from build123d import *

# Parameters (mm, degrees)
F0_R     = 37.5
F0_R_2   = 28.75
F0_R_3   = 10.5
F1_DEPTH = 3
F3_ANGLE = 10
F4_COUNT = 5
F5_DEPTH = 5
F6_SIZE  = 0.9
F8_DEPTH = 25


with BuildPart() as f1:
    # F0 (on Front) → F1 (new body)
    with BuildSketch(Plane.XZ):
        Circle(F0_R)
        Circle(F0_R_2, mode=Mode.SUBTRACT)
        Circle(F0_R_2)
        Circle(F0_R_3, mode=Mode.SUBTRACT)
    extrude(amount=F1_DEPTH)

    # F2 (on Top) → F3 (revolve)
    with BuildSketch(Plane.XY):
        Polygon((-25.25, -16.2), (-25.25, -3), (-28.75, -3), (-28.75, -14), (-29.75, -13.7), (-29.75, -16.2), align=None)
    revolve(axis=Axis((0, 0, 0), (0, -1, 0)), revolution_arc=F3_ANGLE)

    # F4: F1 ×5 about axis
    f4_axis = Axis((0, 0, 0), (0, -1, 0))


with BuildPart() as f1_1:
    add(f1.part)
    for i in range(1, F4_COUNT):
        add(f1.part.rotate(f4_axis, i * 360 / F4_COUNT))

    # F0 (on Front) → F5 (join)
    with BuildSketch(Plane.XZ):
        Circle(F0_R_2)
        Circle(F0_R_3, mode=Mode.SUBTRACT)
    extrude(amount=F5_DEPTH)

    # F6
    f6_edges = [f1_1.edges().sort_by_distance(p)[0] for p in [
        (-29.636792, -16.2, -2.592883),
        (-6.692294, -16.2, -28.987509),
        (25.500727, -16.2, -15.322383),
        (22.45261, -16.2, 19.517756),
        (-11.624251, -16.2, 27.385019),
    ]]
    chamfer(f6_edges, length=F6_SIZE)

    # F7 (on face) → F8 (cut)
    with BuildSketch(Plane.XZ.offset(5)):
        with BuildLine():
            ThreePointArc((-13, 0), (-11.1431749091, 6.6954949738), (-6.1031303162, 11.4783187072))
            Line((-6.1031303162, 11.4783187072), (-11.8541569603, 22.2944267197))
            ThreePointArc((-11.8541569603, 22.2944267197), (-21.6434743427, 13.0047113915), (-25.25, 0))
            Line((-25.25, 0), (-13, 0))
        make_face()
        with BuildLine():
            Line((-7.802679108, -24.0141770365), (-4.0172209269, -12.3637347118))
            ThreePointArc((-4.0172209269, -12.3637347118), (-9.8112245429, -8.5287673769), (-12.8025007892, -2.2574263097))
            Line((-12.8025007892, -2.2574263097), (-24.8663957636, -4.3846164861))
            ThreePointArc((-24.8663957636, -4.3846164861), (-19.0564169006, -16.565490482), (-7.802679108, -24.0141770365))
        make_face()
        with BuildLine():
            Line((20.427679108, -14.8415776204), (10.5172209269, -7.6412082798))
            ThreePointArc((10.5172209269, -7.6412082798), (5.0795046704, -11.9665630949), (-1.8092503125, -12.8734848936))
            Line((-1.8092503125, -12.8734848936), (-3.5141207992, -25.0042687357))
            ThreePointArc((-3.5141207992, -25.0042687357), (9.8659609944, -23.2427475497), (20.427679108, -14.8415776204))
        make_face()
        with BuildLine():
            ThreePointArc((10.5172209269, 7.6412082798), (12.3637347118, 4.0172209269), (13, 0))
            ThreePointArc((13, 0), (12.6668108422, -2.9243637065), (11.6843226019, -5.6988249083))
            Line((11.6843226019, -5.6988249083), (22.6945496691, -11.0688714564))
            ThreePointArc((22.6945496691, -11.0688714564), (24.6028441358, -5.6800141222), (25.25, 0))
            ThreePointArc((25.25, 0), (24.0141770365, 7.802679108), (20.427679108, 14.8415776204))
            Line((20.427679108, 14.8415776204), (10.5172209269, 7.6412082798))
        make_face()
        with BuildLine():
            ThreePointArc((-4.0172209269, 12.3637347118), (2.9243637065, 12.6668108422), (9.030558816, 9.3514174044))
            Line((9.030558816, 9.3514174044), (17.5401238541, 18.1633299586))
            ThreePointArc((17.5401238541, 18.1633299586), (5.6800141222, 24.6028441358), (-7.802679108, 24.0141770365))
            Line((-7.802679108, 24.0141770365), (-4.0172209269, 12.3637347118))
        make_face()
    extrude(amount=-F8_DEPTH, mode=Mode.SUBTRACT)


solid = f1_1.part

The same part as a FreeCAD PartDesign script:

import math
import FreeCAD as App
import Part
import Sketcher

V = App.Vector
Q = App.Units.Quantity


def edges_at(feature, points):
    """Names of the edges that pass closest to the given points."""
    edges = feature.Shape.Edges
    near = lambda p: min(range(len(edges)), key=lambda i: edges[i].distToShape(Part.Vertex(*p))[0])
    return sorted({f"Edge{near(p) + 1}" for p in points})


def add_polygon(sketch, points):
    """Adds a closed chain of lines whose ends are joined by coincident constraints."""
    first, n = sketch.GeometryCount, len(points)
    for a, b in zip(points, points[1:] + points[:1]):
        sketch.addGeometry(Part.LineSegment(App.Vector(*a, 0), App.Vector(*b, 0)), False)
    for i in range(n):
        sketch.addConstraint(Sketcher.Constraint("Coincident", first + i, 2, first + (i + 1) % n, 1))

doc = App.newDocument("Part")
body = doc.addObject("PartDesign::Body", "Body")

# Sketch on XZ plane
sketch1 = body.newObject("Sketcher::SketchObject", "Sketch")
sketch1.AttachmentSupport = (doc.getObject("XZ_Plane"), [""])
sketch1.MapMode = "FlatFace"
sketch1.addGeometry([
    Part.Circle(V(0, 0, 0), V(0, 0, 1), 38),
    Part.Circle(V(0, 0, 0), V(0, 0, 1), 10),
], False)
sketch1.addConstraint([
    Sketcher.Constraint("Coincident", 0, 3, -1, 1),
    Sketcher.Constraint("Coincident", 1, 3, -1, 1),
    Sketcher.Constraint("Diameter", 0, Q("75 mm")),
    Sketcher.Constraint("Diameter", 1, Q("21 mm")),
])
pad1 = body.newObject("PartDesign::Pad", "Pad")
pad1.Profile = sketch1
pad1.Length = 3

# Sketch on XY plane
sketch2 = body.newObject("Sketcher::SketchObject", "Sketch001")
sketch2.AttachmentSupport = (doc.getObject("XY_Plane"), [""])
sketch2.MapMode = "FlatFace"
add_polygon(sketch2, [(-25.2, -16.2), (-25.2, -3), (-28.8, -3), (-28.8, -14), (-29.8, -13.7), (-29.8, -16.2)])  # lines 0-5
sketch2.addConstraint([
    Sketcher.Constraint("Vertical", 0),
    Sketcher.Constraint("Horizontal", 1),
    Sketcher.Constraint("Vertical", 2),
    Sketcher.Constraint("Vertical", 4),
    Sketcher.Constraint("Horizontal", 5),
    Sketcher.Constraint("DistanceY", 2, 2, 2, 1, Q("11 mm")),
    Sketcher.Constraint("DistanceX", 1, 2, 1, 1, Q("3.5 mm")),
    Sketcher.Constraint("DistanceX", 5, 1, 5, 2, Q("4.5 mm")),
    Sketcher.Constraint("DistanceY", 0, 1, 0, 2, Q("13.2 mm")),
    Sketcher.Constraint("DistanceY", 4, 2, 4, 1, Q("2.5 mm")),
    Sketcher.Constraint("DistanceY", 0, 2, -1, 1, Q("3 mm")),
    Sketcher.Constraint("DistanceX", 0, 2, -1, 1, Q("25.25 mm")),
])
revolution = body.newObject("PartDesign::Revolution", "Revolution")
revolution.Profile = sketch2
revolution.ReferenceAxis = (sketch2, ["V_Axis"])
revolution.Angle = 10
revolution.Reversed = True
body2 = doc.addObject("PartDesign::Body", "Body001")
doc.recompute()

body2.BaseFeature = body
doc.recompute()

body3 = doc.addObject("PartDesign::Body", "Body002")
body3.BaseFeature = body
body3.Placement = App.Placement(V(0, 0, 0), App.Rotation(V(0, -1, 0), 72))
boolean = body2.newObject("PartDesign::Boolean", "Boolean")
boolean.Type = "Fuse"
boolean.addObjects([body3])
doc.recompute()

body4 = doc.addObject("PartDesign::Body", "Body003")
body4.BaseFeature = body
body4.Placement = App.Placement(V(0, 0, 0), App.Rotation(V(0, -1, 0), 144))
boolean2 = body2.newObject("PartDesign::Boolean", "Boolean001")
boolean2.Type = "Fuse"
boolean2.addObjects([body4])
doc.recompute()

body5 = doc.addObject("PartDesign::Body", "Body004")
body5.BaseFeature = body
body5.Placement = App.Placement(V(0, 0, 0), App.Rotation(V(0, -1, 0), 216))
boolean3 = body2.newObject("PartDesign::Boolean", "Boolean002")
boolean3.Type = "Fuse"
boolean3.addObjects([body5])
doc.recompute()

body.Placement = App.Placement(V(0, 0, 0), App.Rotation(V(0, -1, 0), 288))
boolean4 = body2.newObject("PartDesign::Boolean", "Boolean003")
boolean4.Type = "Fuse"
boolean4.addObjects([body])

# Sketch on XZ plane
sketch3 = body2.newObject("Sketcher::SketchObject", "Sketch002")
sketch3.AttachmentSupport = (doc.getObject("XZ_Plane001"), [""])
sketch3.MapMode = "FlatFace"
sketch3.addGeometry([
    Part.Circle(V(0, 0, 0), V(0, 0, 1), 29),
    Part.Circle(V(0, 0, 0), V(0, 0, 1), 10),
], False)
sketch3.addConstraint([
    Sketcher.Constraint("Coincident", 0, 3, -1, 1),
    Sketcher.Constraint("Coincident", 1, 3, -1, 1),
    Sketcher.Constraint("Diameter", 1, Q("21 mm")),
    Sketcher.Constraint("Diameter", 0, Q("57.5 mm")),
])
pad2 = body2.newObject("PartDesign::Pad", "Pad001")
pad2.Profile = sketch3
pad2.Length = 5
doc.recompute()

chamfer = body2.newObject("PartDesign::Chamfer", "Chamfer")
chamfer.Base = (pad2, edges_at(pad2, [
    (-29.637, -16.2, -2.593),
    (-6.692, -16.2, -28.988),
    (25.501, -16.2, -15.322),
    (22.453, -16.2, 19.518),
    (-11.624, -16.2, 27.385),
]))
chamfer.Size = 0.9

# Sketch on XZ plane
sketch4 = body2.newObject("Sketcher::SketchObject", "Sketch003")
sketch4.AttachmentSupport = (doc.getObject("XZ_Plane001"), [""])
sketch4.MapMode = "FlatFace"
sketch4.AttachmentOffset = App.Placement(V(0, 0, 5), App.Rotation())
sketch4.addGeometry([
    Part.ArcOfCircle(Part.Circle(V(0, 0, 0), V(0, 0, 1), 13), math.radians(118), math.radians(180)),  # 0
    Part.LineSegment(V(-6, 11, 0), V(-12, 22, 0)),  # 1
    Part.ArcOfCircle(Part.Circle(V(0, 0, 0), V(0, 0, 1), 25), math.radians(118), math.radians(180)),  # 2
    Part.LineSegment(V(-25, 0, 0), V(-13, 0, 0)),  # 3
    Part.LineSegment(V(-8, -24, 0), V(-4, -12, 0)),  # 4
    Part.ArcOfCircle(Part.Circle(V(0, 0, 0), V(0, 0, 1), 13), math.radians(-170), math.radians(-108)),  # 5
    Part.LineSegment(V(-13, -2, 0), V(-25, -4, 0)),  # 6
    Part.ArcOfCircle(Part.Circle(V(0, 0, 0), V(0, 0, 1), 25), math.radians(-170), math.radians(-108)),  # 7
    Part.LineSegment(V(20, -15, 0), V(11, -8, 0)),  # 8
    Part.ArcOfCircle(Part.Circle(V(0, 0, 0), V(0, 0, 1), 13), math.radians(-98), math.radians(-36)),  # 9
    Part.LineSegment(V(-2, -13, 0), V(-4, -25, 0)),  # 10
    Part.ArcOfCircle(Part.Circle(V(0, 0, 0), V(0, 0, 1), 25), math.radians(-98), math.radians(-36)),  # 11
    Part.ArcOfCircle(Part.Circle(V(0, 0, 0), V(0, 0, 1), 13), math.radians(0), math.radians(36)),  # 12
    Part.ArcOfCircle(Part.Circle(V(0, 0, 0), V(0, 0, 1), 13), math.radians(-26), math.radians(0)),  # 13
    Part.LineSegment(V(12, -6, 0), V(23, -11, 0)),  # 14
    Part.ArcOfCircle(Part.Circle(V(0, 0, 0), V(0, 0, 1), 25), math.radians(-26), math.radians(36)),  # 15
    Part.LineSegment(V(20, 15, 0), V(11, 8, 0)),  # 16
    Part.ArcOfCircle(Part.Circle(V(0, 0, 0), V(0, 0, 1), 13), math.radians(46), math.radians(108)),  # 17
    Part.LineSegment(V(9, 9, 0), V(18, 18, 0)),  # 18
    Part.ArcOfCircle(Part.Circle(V(0, 0, 0), V(0, 0, 1), 25), math.radians(46), math.radians(108)),  # 19
    Part.LineSegment(V(-8, 24, 0), V(-4, 12, 0)),  # 20
], False)
sketch4.addConstraint([
    Sketcher.Constraint("Coincident", 0, 1, 1, 1),
    Sketcher.Constraint("Coincident", 1, 2, 2, 1),
    Sketcher.Constraint("Coincident", 2, 2, 3, 1),
    Sketcher.Constraint("Coincident", 3, 2, 0, 2),
    Sketcher.Constraint("Coincident", 4, 2, 5, 2),
    Sketcher.Constraint("Coincident", 5, 1, 6, 1),
    Sketcher.Constraint("Coincident", 6, 2, 7, 1),
    Sketcher.Constraint("Coincident", 7, 2, 4, 1),
    Sketcher.Constraint("Coincident", 8, 2, 9, 2),
    Sketcher.Constraint("Coincident", 9, 1, 10, 1),
    Sketcher.Constraint("Coincident", 10, 2, 11, 1),
    Sketcher.Constraint("Coincident", 11, 2, 8, 1),
    Sketcher.Constraint("Tangent", 12, 1, 13, 2),
    Sketcher.Constraint("Coincident", 13, 1, 14, 1),
    Sketcher.Constraint("Coincident", 14, 2, 15, 1),
    Sketcher.Constraint("Coincident", 15, 2, 16, 1),
    Sketcher.Constraint("Coincident", 16, 2, 12, 2),
    Sketcher.Constraint("Coincident", 17, 1, 18, 1),
    Sketcher.Constraint("Coincident", 18, 2, 19, 1),
    Sketcher.Constraint("Coincident", 19, 2, 20, 1),
    Sketcher.Constraint("Coincident", 20, 2, 17, 2),
    Sketcher.Constraint("Horizontal", 3),
    Sketcher.Constraint("Coincident", 0, 3, -1, 1),
    Sketcher.Constraint("Coincident", 2, 3, -1, 1),
    Sketcher.Constraint("Coincident", 5, 3, -1, 1),
    Sketcher.Constraint("Coincident", 7, 3, -1, 1),
    Sketcher.Constraint("Coincident", 9, 3, -1, 1),
    Sketcher.Constraint("Coincident", 11, 3, -1, 1),
    Sketcher.Constraint("Coincident", 12, 3, -1, 1),
    Sketcher.Constraint("Coincident", 15, 3, -1, 1),
    Sketcher.Constraint("Coincident", 17, 3, -1, 1),
    Sketcher.Constraint("Coincident", 19, 3, -1, 1),
    Sketcher.Constraint("Equal", 0, 5),
    Sketcher.Constraint("Equal", 2, 7),
    Sketcher.Constraint("Equal", 5, 9),
    Sketcher.Constraint("Equal", 7, 11),
    Sketcher.Constraint("Equal", 9, 12),
    Sketcher.Constraint("Equal", 12, 13),
    Sketcher.Constraint("Equal", 11, 15),
    Sketcher.Constraint("Equal", 13, 17),
    Sketcher.Constraint("Equal", 15, 19),
    Sketcher.Constraint("PointOnObject", 2, 2, -1),
    Sketcher.Constraint("PointOnObject", 12, 1, -1),
    Sketcher.Constraint("Vertical", 11, 2, 15, 2),
    Sketcher.Constraint("Vertical", 8, 2, 16, 2),
    Sketcher.Constraint("Vertical", 7, 2, 19, 2),
    Sketcher.Constraint("Vertical", 4, 2, 20, 2),
    Sketcher.Constraint("Radius", 0, Q("13 mm")),
    Sketcher.Constraint("Angle", 1, Q("118 deg")),
    Sketcher.Constraint("Angle", 4, Q("72 deg")),
    Sketcher.Constraint("Angle", 6, Q("-170 deg")),
    Sketcher.Constraint("Angle", 8, Q("144 deg")),
    Sketcher.Constraint("Angle", 10, Q("-98 deg")),
    Sketcher.Constraint("Angle", 14, Q("-26 deg")),
    Sketcher.Constraint("Angle", 18, Q("46 deg")),
    Sketcher.Constraint("Radius", 2, Q("25.25 mm")),
    Sketcher.Constraint("DistanceX", 5, 1, -1, 1, Q("12.802501 mm")),
    Sketcher.Constraint("DistanceX", 4, 2, 10, 2, Q("0.5031 mm")),
    Sketcher.Constraint("DistanceX", 4, 2, 11, 2, Q("24.4449 mm")),
    Sketcher.Constraint("DistanceX", 8, 2, 13, 1, Q("1.167102 mm")),
    Sketcher.Constraint("DistanceX", 0, 1, -1, 1, Q("6.10313 mm")),
    Sketcher.Constraint("DistanceX", 4, 2, -1, 1, Q("4.017221 mm")),
    Sketcher.Constraint("DistanceX", -1, 1, 17, 1, Q("9.030559 mm")),
])
pocket1 = body2.newObject("PartDesign::Pocket", "Pocket")
pocket1.Profile = sketch4
pocket1.Length = 25

doc.recompute()
